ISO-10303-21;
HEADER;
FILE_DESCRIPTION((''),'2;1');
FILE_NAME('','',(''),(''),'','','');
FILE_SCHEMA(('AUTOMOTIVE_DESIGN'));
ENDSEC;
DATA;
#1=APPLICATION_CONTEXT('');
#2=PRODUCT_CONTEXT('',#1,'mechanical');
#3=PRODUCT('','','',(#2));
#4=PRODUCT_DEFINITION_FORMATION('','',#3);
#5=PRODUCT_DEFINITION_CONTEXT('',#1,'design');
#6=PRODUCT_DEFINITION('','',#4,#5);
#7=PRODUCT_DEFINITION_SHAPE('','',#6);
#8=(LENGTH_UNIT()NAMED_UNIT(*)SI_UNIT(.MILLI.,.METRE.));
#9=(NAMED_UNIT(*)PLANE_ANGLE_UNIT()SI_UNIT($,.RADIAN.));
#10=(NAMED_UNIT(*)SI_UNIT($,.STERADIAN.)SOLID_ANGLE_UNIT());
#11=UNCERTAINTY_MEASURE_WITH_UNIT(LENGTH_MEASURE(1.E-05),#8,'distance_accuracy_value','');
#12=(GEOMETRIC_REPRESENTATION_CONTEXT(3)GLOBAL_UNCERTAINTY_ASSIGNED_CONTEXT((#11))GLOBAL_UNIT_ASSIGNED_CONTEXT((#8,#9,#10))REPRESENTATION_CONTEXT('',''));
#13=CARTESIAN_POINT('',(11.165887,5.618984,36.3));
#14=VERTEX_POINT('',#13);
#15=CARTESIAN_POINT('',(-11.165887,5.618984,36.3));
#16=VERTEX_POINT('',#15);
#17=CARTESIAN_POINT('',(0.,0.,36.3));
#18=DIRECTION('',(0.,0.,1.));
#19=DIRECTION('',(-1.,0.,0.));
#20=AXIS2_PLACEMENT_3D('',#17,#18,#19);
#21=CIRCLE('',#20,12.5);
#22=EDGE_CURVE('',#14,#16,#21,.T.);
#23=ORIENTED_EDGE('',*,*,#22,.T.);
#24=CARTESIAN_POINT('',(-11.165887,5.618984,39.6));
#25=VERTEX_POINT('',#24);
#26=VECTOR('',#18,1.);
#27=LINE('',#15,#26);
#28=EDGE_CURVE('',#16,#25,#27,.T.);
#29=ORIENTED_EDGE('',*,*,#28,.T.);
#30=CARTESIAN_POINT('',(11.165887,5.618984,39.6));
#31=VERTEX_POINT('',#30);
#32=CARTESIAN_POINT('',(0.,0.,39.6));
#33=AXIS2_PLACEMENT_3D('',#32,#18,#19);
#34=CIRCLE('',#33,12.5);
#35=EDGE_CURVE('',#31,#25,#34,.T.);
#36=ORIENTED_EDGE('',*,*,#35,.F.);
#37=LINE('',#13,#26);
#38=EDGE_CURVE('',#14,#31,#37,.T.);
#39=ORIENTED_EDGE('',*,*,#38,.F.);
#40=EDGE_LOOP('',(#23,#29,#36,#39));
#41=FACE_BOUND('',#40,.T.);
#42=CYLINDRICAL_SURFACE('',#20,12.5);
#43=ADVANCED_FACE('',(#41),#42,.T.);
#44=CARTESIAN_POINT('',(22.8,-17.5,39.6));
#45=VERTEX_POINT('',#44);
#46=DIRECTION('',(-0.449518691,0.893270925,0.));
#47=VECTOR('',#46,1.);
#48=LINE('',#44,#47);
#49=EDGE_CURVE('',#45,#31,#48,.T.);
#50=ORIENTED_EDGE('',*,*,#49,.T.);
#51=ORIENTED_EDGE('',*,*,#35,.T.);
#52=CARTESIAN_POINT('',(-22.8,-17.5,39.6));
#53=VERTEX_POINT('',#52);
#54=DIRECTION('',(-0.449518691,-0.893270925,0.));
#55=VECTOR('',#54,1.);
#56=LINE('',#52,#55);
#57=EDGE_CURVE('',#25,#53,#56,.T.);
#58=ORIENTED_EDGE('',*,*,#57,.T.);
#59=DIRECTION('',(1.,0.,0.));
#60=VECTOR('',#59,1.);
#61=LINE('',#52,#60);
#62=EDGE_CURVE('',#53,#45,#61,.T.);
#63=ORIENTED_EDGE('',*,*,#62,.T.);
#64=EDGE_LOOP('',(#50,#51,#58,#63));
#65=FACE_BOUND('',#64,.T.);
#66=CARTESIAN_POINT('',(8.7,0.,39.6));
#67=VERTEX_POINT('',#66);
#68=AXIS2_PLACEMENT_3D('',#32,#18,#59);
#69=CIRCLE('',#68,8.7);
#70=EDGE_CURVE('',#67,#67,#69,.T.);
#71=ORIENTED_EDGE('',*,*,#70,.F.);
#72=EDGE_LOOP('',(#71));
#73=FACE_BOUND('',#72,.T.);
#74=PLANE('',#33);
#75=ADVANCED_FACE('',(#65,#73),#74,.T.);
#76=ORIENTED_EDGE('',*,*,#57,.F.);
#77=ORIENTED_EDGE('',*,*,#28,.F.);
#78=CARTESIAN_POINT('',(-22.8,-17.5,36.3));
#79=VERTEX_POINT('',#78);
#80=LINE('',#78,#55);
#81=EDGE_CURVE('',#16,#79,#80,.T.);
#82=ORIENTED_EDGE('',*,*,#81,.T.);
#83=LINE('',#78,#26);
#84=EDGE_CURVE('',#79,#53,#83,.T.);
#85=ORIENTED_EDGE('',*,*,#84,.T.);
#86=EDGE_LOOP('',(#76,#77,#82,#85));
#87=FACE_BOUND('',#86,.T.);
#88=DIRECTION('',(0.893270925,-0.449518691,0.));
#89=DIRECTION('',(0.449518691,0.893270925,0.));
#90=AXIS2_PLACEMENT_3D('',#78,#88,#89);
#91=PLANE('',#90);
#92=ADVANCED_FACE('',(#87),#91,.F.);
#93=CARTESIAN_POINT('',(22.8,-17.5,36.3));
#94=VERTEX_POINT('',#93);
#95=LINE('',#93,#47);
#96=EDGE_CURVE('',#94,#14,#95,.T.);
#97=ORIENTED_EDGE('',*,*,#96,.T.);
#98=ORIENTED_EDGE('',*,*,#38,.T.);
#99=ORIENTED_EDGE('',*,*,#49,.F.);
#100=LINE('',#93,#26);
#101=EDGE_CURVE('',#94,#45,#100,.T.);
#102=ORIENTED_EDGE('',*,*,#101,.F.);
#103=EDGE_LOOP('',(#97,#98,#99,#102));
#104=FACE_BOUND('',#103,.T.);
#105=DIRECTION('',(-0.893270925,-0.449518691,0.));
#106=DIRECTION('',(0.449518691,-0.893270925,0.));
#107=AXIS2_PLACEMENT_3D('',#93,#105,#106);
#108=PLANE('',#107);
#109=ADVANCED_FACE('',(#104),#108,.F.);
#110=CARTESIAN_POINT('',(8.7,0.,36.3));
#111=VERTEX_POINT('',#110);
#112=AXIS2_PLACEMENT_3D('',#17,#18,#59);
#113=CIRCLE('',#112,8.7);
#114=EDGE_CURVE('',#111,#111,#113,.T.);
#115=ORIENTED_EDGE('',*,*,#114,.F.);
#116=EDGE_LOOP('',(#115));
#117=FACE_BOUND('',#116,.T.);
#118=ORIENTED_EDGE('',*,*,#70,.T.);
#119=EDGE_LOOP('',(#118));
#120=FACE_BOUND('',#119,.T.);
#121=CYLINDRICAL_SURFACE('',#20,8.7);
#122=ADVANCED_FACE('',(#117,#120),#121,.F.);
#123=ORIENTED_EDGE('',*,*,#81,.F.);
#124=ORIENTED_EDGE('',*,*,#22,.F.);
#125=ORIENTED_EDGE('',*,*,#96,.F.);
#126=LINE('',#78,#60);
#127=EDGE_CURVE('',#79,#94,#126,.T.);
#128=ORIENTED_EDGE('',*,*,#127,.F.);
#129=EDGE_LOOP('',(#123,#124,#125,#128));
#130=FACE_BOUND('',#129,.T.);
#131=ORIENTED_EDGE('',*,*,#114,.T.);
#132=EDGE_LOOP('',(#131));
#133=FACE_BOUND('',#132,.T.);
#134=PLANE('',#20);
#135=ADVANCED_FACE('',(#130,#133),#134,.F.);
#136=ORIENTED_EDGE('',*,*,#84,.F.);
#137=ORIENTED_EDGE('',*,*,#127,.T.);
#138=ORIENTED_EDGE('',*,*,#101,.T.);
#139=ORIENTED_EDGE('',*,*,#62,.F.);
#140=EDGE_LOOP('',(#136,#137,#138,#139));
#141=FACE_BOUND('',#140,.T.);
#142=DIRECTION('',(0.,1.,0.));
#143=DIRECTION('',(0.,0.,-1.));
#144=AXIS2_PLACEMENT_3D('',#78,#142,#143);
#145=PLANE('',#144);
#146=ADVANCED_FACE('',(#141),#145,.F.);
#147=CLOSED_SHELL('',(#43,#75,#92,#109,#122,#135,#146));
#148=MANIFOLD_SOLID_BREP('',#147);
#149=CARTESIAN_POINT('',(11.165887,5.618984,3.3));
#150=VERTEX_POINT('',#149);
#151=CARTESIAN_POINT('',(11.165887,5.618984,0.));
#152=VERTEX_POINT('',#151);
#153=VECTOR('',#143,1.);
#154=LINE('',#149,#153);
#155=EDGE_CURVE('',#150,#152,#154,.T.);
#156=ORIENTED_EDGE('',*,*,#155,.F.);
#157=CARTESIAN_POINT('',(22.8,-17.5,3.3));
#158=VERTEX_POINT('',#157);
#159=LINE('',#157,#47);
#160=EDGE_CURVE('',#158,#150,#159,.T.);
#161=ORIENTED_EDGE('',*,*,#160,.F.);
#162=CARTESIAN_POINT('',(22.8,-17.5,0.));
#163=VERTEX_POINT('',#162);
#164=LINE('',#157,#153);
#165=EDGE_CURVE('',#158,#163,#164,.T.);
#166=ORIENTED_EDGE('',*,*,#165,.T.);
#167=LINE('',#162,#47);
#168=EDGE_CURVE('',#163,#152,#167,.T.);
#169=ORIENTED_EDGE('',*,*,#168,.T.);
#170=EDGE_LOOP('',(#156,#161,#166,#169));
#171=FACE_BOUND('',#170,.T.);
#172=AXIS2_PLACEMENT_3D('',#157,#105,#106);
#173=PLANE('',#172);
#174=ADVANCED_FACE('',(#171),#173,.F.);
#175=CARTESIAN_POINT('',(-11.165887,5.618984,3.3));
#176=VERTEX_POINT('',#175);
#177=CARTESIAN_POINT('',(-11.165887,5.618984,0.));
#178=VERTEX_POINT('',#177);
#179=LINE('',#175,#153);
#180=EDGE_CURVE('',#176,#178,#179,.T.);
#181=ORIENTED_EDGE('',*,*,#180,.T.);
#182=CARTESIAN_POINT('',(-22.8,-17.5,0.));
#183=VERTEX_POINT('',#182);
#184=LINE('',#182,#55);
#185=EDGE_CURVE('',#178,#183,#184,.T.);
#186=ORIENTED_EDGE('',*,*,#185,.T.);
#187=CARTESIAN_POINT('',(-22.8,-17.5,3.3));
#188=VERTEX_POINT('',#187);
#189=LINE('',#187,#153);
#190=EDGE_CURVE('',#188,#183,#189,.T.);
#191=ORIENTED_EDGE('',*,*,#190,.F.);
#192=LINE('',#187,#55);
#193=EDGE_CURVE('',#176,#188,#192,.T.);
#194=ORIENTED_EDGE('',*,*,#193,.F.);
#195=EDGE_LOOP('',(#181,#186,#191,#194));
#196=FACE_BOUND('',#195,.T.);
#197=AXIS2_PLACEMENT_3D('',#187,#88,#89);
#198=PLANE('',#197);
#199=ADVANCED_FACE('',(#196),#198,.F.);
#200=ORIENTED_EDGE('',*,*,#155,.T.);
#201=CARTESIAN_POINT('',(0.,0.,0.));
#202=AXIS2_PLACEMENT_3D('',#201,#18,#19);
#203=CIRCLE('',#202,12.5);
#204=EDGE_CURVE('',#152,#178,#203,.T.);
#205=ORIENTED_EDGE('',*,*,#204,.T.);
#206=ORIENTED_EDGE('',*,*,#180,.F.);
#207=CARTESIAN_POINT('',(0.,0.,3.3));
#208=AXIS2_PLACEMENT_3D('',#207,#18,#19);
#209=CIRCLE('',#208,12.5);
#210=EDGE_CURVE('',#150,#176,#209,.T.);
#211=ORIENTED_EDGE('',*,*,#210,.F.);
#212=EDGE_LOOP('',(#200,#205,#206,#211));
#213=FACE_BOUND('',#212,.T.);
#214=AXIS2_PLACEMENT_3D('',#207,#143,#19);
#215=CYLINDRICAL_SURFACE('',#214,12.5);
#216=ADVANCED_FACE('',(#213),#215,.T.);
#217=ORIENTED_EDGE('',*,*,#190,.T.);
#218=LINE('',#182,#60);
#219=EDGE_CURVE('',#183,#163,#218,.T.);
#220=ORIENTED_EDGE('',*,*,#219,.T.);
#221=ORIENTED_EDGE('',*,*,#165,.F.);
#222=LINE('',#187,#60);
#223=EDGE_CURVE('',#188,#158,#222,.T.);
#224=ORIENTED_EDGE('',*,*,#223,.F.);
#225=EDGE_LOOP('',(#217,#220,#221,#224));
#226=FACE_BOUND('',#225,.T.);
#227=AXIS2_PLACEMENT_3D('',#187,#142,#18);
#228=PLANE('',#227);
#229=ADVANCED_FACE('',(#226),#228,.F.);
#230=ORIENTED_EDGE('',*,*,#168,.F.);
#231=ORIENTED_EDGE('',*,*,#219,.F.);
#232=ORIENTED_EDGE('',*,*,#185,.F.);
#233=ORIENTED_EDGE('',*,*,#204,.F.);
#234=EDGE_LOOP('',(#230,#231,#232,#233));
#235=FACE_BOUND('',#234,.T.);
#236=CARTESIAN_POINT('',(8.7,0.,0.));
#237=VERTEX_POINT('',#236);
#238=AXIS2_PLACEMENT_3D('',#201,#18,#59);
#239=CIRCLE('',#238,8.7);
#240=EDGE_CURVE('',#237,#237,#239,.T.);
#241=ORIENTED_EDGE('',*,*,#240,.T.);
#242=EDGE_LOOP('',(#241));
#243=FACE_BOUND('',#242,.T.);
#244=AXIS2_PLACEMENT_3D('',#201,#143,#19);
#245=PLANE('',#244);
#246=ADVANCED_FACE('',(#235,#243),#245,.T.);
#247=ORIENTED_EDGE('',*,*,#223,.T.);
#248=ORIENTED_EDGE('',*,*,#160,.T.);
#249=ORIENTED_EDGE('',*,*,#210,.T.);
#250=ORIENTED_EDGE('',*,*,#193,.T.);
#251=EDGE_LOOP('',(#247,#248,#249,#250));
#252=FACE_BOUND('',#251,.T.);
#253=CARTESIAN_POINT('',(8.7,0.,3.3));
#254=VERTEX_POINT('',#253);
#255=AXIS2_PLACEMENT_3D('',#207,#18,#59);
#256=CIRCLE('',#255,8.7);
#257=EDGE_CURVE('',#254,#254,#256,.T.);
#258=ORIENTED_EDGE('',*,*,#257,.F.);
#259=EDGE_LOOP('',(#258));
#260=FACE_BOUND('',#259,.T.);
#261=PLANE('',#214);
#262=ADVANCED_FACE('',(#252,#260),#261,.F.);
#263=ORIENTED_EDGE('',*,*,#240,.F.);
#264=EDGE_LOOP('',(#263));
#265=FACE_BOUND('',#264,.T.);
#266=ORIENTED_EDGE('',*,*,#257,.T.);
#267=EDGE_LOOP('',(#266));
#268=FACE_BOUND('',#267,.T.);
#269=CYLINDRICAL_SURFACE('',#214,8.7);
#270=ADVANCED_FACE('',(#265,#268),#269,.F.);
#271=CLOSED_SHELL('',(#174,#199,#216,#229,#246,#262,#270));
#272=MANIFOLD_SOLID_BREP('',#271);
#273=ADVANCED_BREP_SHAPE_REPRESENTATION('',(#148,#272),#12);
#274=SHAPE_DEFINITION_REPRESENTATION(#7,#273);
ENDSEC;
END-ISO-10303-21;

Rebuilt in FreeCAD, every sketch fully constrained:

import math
import FreeCAD as App
import Part
import Sketcher

V = App.Vector
Q = App.Units.Quantity

doc = App.newDocument("Part")
body = doc.addObject("PartDesign::Body", "Body")

sketch1 = body.newObject("Sketcher::SketchObject", "Sketch")
sketch1.AttachmentSupport = (doc.getObject("XY_Plane"), [""])
sketch1.MapMode = "FlatFace"
sketch1.addGeometry([
    Part.LineSegment(V(-22.8, -17.5, 0), V(22.8, -17.5, 0)),
    Part.LineSegment(V(22.8, -17.5, 0), V(11.165887, 5.618984, 0)),
    Part.ArcOfCircle(Part.Circle(V(0, 0, 0), V(0, 0, 1), 12.5), math.radians(26.712808), math.radians(153.287192)),
    Part.LineSegment(V(-11.165887, 5.618984, 0), V(-22.8, -17.5, 0)),
    Part.Circle(V(0, 0, 0), V(0, 0, 1), 8.7),
], False)
sketch1.addConstraint([
    Sketcher.Constraint("Coincident", 0, 2, 1, 1),
    Sketcher.Constraint("Tangent", 1, 2, 2, 1),
    Sketcher.Constraint("Tangent", 2, 2, 3, 1),
    Sketcher.Constraint("Coincident", 3, 2, 0, 1),
    Sketcher.Constraint("Horizontal", 0),
    Sketcher.Constraint("Coincident", 2, 3, -1, 1),
    Sketcher.Constraint("Coincident", 4, 3, -1, 1),
    Sketcher.Constraint("Horizontal", 1, 2, 2, 2),
    Sketcher.Constraint("Diameter", 4, Q("17.4 mm")),
    Sketcher.Constraint("Radius", 2, Q("12.5 mm")),
    Sketcher.Constraint("DistanceX", 0, 1, 0, 2, Q("45.6 mm")),
    Sketcher.Constraint("DistanceY", 0, 2, -1, 1, Q("17.5 mm")),
])
pad1 = body.newObject("PartDesign::Pad", "Pad")
pad1.Profile = sketch1
pad1.Length = 3.3
body2 = doc.addObject("PartDesign::Body", "Body001")
doc.recompute()

mirroring = doc.addObject("Part::Mirroring", "Mirroring")
mirroring.Source = body
mirroring.Base = V(0, 0, 19.8)
mirroring.Normal = V(0, 0, 1)
body2.BaseFeature = mirroring
doc.recompute()
mirroring.Visibility = False

doc.recompute()
